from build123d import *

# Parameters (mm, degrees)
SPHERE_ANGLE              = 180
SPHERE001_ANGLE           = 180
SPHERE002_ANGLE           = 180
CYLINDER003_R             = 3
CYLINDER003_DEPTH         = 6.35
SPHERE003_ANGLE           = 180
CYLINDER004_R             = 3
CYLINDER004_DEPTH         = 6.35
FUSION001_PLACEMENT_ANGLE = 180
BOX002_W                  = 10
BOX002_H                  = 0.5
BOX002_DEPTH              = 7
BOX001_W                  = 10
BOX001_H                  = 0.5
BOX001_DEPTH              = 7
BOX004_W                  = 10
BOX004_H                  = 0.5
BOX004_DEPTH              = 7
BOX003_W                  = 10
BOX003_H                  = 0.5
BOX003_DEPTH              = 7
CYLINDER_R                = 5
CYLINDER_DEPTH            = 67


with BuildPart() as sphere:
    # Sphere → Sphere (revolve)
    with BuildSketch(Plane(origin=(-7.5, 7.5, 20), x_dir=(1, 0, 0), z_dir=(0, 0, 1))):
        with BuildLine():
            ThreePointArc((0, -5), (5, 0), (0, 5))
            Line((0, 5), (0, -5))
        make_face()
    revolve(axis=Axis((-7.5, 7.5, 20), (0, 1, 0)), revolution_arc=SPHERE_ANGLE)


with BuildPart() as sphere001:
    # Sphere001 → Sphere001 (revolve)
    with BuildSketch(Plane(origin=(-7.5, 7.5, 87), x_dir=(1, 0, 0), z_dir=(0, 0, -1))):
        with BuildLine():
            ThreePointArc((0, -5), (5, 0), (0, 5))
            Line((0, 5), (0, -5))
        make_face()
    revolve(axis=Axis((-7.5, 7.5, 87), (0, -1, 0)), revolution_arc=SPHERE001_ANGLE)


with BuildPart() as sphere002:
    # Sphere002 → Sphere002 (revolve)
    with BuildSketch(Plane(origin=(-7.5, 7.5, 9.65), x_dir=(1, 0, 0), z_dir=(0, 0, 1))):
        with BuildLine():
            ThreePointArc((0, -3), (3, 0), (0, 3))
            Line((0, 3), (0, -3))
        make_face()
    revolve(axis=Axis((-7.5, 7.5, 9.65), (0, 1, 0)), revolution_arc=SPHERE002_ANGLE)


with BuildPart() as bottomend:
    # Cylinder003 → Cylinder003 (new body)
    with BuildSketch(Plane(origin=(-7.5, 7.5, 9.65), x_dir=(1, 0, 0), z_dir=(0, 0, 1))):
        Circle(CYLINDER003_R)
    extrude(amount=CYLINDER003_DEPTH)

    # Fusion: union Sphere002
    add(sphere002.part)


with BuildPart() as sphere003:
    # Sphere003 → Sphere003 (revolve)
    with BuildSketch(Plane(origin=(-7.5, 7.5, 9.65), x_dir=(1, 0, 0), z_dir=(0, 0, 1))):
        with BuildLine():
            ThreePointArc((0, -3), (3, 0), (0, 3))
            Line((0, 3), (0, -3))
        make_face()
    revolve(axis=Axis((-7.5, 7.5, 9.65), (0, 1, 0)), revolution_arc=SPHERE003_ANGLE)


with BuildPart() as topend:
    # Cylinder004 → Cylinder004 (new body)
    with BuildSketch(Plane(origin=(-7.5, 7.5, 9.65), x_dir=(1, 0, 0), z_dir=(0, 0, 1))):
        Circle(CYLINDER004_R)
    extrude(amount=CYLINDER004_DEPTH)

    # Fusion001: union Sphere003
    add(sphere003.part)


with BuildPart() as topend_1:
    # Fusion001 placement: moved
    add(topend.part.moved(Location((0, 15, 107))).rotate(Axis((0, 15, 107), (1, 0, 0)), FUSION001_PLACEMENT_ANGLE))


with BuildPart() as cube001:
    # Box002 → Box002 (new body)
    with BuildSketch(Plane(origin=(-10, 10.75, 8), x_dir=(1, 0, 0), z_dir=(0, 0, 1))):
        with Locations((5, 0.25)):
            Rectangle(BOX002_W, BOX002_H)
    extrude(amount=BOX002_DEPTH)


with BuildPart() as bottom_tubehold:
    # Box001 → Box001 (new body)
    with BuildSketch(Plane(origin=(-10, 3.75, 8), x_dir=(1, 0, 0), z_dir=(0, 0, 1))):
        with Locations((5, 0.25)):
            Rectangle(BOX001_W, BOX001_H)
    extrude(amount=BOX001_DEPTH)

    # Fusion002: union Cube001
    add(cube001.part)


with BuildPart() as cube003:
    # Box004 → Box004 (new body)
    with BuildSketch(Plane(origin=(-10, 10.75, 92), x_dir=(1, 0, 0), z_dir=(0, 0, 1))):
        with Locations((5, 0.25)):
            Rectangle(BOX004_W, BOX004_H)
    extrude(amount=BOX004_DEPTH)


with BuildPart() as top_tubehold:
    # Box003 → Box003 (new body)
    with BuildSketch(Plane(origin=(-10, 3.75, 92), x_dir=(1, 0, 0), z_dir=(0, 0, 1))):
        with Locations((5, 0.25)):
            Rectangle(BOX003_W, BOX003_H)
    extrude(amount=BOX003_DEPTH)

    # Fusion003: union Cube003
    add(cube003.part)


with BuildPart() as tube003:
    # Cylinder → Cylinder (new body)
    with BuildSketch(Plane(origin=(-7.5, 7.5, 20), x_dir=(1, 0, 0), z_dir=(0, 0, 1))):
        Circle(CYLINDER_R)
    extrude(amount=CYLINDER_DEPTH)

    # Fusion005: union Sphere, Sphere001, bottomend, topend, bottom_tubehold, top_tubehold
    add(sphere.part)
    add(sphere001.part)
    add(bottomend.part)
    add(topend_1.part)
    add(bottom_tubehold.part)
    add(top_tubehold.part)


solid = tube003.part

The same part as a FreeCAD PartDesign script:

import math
import FreeCAD as App
import Part
import Sketcher
from FreeCAD import Vector
Q = App.Units.Quantity


def add_polygon(sketch, points):
    """Adds a closed chain of lines whose ends are joined by coincident constraints."""
    first, n = sketch.GeometryCount, len(points)
    for a, b in zip(points, points[1:] + points[:1]):
        sketch.addGeometry(Part.LineSegment(App.Vector(*a, 0), App.Vector(*b, 0)), False)
    for i in range(n):
        sketch.addConstraint(Sketcher.Constraint("Coincident", first + i, 2, first + (i + 1) % n, 1))

doc = App.newDocument("Part")
params = doc.addObject("Spreadsheet::Sheet", "Params")
for row, (alias, value) in enumerate([
    ("sketch1_radius", "5 mm"),
    ("revolution_angle", "180 deg"),
    ("sketch2_radius", "5 mm"),
    ("revolution2_angle", "180 deg"),
    ("sketch3_radius", "3 mm"),
    ("revolution3_angle", "180 deg"),
    ("sketch4_diameter", "6 mm"),
    ("pad1_length", "6.35 mm"),
    ("sketch5_radius", "3 mm"),
    ("revolution4_angle", "180 deg"),
    ("sketch6_diameter", "6 mm"),
    ("pad2_length", "6.35 mm"),
    ("sketch7_width", "10 mm"),
    ("sketch7_height", "0.5 mm"),
    ("pad3_length", "7 mm"),
    ("sketch8_width", "10 mm"),
    ("sketch8_height", "0.5 mm"),
    ("pad4_length", "7 mm"),
    ("sketch9_width", "10 mm"),
    ("sketch9_height", "0.5 mm"),
    ("pad5_length", "7 mm"),
    ("sketch10_width", "10 mm"),
    ("sketch10_height", "0.5 mm"),
    ("pad6_length", "7 mm"),
    ("sketch11_diameter", "10 mm"),
    ("pad7_length", "67 mm"),
], start=1):
    params.set(f"A{row}", alias)
    params.set(f"B{row}", "=" + value)
    params.setAlias(f"B{row}", alias)

body = doc.addObject("PartDesign::Body", "Body")

sketch1 = body.newObject("Sketcher::SketchObject", "Sketch")
sketch1.AttachmentSupport = (doc.getObject("XY_Plane"), [""])
sketch1.MapMode = "FlatFace"
sketch1.AttachmentOffset = App.Placement(Vector(0, 0, 20), App.Rotation())
sketch1.addGeometry([
    Part.ArcOfCircle(Part.Circle(Vector(-8, 8, 0), Vector(0, 0, 1), 5), math.radians(-90), math.radians(90)),
    Part.LineSegment(Vector(-8, 12, 0), Vector(-8, 2, 0)),
], False)
sketch1.addGeometry(Part.LineSegment(Vector(-8, 2, 0), Vector(-8, 12, 0)), True)
sketch1.addConstraint([
    Sketcher.Constraint("Coincident", 0, 1, 1, 2),
    Sketcher.Constraint("Coincident", 1, 1, 0, 2),
    Sketcher.Constraint("Vertical", 1),
    Sketcher.Constraint("Vertical", 2),
    Sketcher.Constraint("Coincident", 2, 1, 0, 1),
    Sketcher.Constraint("Equal", 1, 2),
    Sketcher.Constraint("Radius", 0, Q("5 mm")),
    Sketcher.Constraint("DistanceX", 0, 3, -1, 1, Q("7.5 mm")),
    Sketcher.Constraint("DistanceY", -1, 1, 0, 3, Q("7.5 mm")),
    Sketcher.Constraint("DistanceX", 0, 1, -1, 1, Q("7.5 mm")),
])
sketch1.setExpression("Constraints[6]", "Params.sketch1_radius")
revolution = body.newObject("PartDesign::Revolution", "Revolution")
revolution.Profile = sketch1
revolution.ReferenceAxis = (sketch1, ["Axis0"])
revolution.setExpression("Angle", "Params.revolution_angle")
body2 = doc.addObject("PartDesign::Body", "Body001")

sketch2 = body2.newObject("Sketcher::SketchObject", "Sketch001")
sketch2.AttachmentSupport = (doc.getObject("XY_Plane001"), [""])
sketch2.MapMode = "FlatFace"
sketch2.AttachmentOffset = App.Placement(Vector(0, 0, 87), App.Rotation())
sketch2.addGeometry([
    Part.ArcOfCircle(Part.Circle(Vector(-8, 8, 0), Vector(0, 0, 1), 5), math.radians(-90), math.radians(90)),
    Part.LineSegment(Vector(-8, 2, 0), Vector(-8, 12, 0)),
], False)
sketch2.addGeometry(Part.LineSegment(Vector(-8, 12, 0), Vector(-8, 2, 0)), True)
sketch2.addConstraint([
    Sketcher.Constraint("Coincident", 0, 1, 1, 1),
    Sketcher.Constraint("Coincident", 1, 2, 0, 2),
    Sketcher.Constraint("Vertical", 1),
    Sketcher.Constraint("Vertical", 2),
    Sketcher.Constraint("Coincident", 2, 1, 1, 2),
    Sketcher.Constraint("Equal", 1, 2),
    Sketcher.Constraint("Radius", 0, Q("5 mm")),
    Sketcher.Constraint("DistanceX", 0, 3, -1, 1, Q("7.5 mm")),
    Sketcher.Constraint("DistanceY", -1, 1, 0, 3, Q("7.5 mm")),
    Sketcher.Constraint("DistanceX", 0, 1, -1, 1, Q("7.5 mm")),
])
sketch2.setExpression("Constraints[6]", "Params.sketch2_radius")
revolution2 = body2.newObject("PartDesign::Revolution", "Revolution001")
revolution2.Profile = sketch2
revolution2.ReferenceAxis = (sketch2, ["Axis0"])
revolution2.setExpression("Angle", "Params.revolution2_angle")
body3 = doc.addObject("PartDesign::Body", "Body002")

sketch3 = body3.newObject("Sketcher::SketchObject", "Sketch002")
sketch3.AttachmentSupport = (doc.getObject("XY_Plane002"), [""])
sketch3.MapMode = "FlatFace"
sketch3.AttachmentOffset = App.Placement(Vector(0, 0, 9.65), App.Rotation())
sketch3.addGeometry([
    Part.ArcOfCircle(Part.Circle(Vector(-7.5, 7.5, 0), Vector(0, 0, 1), 3), math.radians(-90), math.radians(90)),
    Part.LineSegment(Vector(-7.5, 10.5, 0), Vector(-7.5, 4.5, 0)),
], False)
sketch3.addGeometry(Part.LineSegment(Vector(-7.5, 4.5, 0), Vector(-7.5, 10.5, 0)), True)
sketch3.addConstraint([
    Sketcher.Constraint("Coincident", 0, 1, 1, 2),
    Sketcher.Constraint("Coincident", 1, 1, 0, 2),
    Sketcher.Constraint("Vertical", 1),
    Sketcher.Constraint("Vertical", 2),
    Sketcher.Constraint("Coincident", 2, 1, 0, 1),
    Sketcher.Constraint("Equal", 1, 2),
    Sketcher.Constraint("Radius", 0, Q("3 mm")),
    Sketcher.Constraint("DistanceX", 0, 3, -1, 1, Q("7.5 mm")),
    Sketcher.Constraint("DistanceY", -1, 1, 0, 3, Q("7.5 mm")),
    Sketcher.Constraint("DistanceX", 0, 1, -1, 1, Q("7.5 mm")),
])
sketch3.setExpression("Constraints[6]", "Params.sketch3_radius")
revolution3 = body3.newObject("PartDesign::Revolution", "Revolution002")
revolution3.Profile = sketch3
revolution3.ReferenceAxis = (sketch3, ["Axis0"])
revolution3.setExpression("Angle", "Params.revolution3_angle")
body4 = doc.addObject("PartDesign::Body", "Body003")

sketch4 = body4.newObject("Sketcher::SketchObject", "Sketch003")
sketch4.AttachmentSupport = (doc.getObject("XY_Plane003"), [""])
sketch4.MapMode = "FlatFace"
sketch4.AttachmentOffset = App.Placement(Vector(0, 0, 9.65), App.Rotation())
sketch4.addGeometry(Part.Circle(Vector(-7.5, 7.5, 0), Vector(0, 0, 1), 3), False)
sketch4.addConstraint([
    Sketcher.Constraint("Diameter", 0, Q("6 mm")),
    Sketcher.Constraint("DistanceX", 0, 3, -1, 1, Q("7.5 mm")),
    Sketcher.Constraint("DistanceY", -1, 1, 0, 3, Q("7.5 mm")),
])
sketch4.setExpression("Constraints[0]", "Params.sketch4_diameter")
pad1 = body4.newObject("PartDesign::Pad", "Pad")
pad1.Profile = sketch4
pad1.setExpression("Length", "Params.pad1_length")
doc.recompute()

boolean = body4.newObject("PartDesign::Boolean", "Boolean")
boolean.Type = "Fuse"
boolean.addObjects([body3])
body5 = doc.addObject("PartDesign::Body", "Body004")

sketch5 = body5.newObject("Sketcher::SketchObject", "Sketch004")
sketch5.AttachmentSupport = (doc.getObject("XY_Plane004"), [""])
sketch5.MapMode = "FlatFace"
sketch5.AttachmentOffset = App.Placement(Vector(0, 0, 9.65), App.Rotation())
sketch5.addGeometry([
    Part.ArcOfCircle(Part.Circle(Vector(-7.5, 7.5, 0), Vector(0, 0, 1), 3), math.radians(-90), math.radians(90)),
    Part.LineSegment(Vector(-7.5, 10.5, 0), Vector(-7.5, 4.5, 0)),
], False)
sketch5.addGeometry(Part.LineSegment(Vector(-7.5, 4.5, 0), Vector(-7.5, 10.5, 0)), True)
sketch5.addConstraint([
    Sketcher.Constraint("Coincident", 0, 1, 1, 2),
    Sketcher.Constraint("Coincident", 1, 1, 0, 2),
    Sketcher.Constraint("Vertical", 1),
    Sketcher.Constraint("Vertical", 2),
    Sketcher.Constraint("Coincident", 2, 1, 0, 1),
    Sketcher.Constraint("Equal", 1, 2),
    Sketcher.Constraint("Radius", 0, Q("3 mm")),
    Sketcher.Constraint("DistanceX", 0, 3, -1, 1, Q("7.5 mm")),
    Sketcher.Constraint("DistanceY", -1, 1, 0, 3, Q("7.5 mm")),
    Sketcher.Constraint("DistanceX", 0, 1, -1, 1, Q("7.5 mm")),
])
sketch5.setExpression("Constraints[6]", "Params.sketch5_radius")
revolution4 = body5.newObject("PartDesign::Revolution", "Revolution003")
revolution4.Profile = sketch5
revolution4.ReferenceAxis = (sketch5, ["Axis0"])
revolution4.setExpression("Angle", "Params.revolution4_angle")
body6 = doc.addObject("PartDesign::Body", "Body005")

sketch6 = body6.newObject("Sketcher::SketchObject", "Sketch005")
sketch6.AttachmentSupport = (doc.getObject("XY_Plane005"), [""])
sketch6.MapMode = "FlatFace"
sketch6.AttachmentOffset = App.Placement(Vector(0, 0, 9.65), App.Rotation())
sketch6.addGeometry(Part.Circle(Vector(-7.5, 7.5, 0), Vector(0, 0, 1), 3), False)
sketch6.addConstraint([
    Sketcher.Constraint("Diameter", 0, Q("6 mm")),
    Sketcher.Constraint("DistanceX", 0, 3, -1, 1, Q("7.5 mm")),
    Sketcher.Constraint("DistanceY", -1, 1, 0, 3, Q("7.5 mm")),
])
sketch6.setExpression("Constraints[0]", "Params.sketch6_diameter")
pad2 = body6.newObject("PartDesign::Pad", "Pad001")
pad2.Profile = sketch6
pad2.setExpression("Length", "Params.pad2_length")
doc.recompute()

boolean2 = body6.newObject("PartDesign::Boolean", "Boolean001")
boolean2.Type = "Fuse"
boolean2.addObjects([body5])
body7 = doc.addObject("PartDesign::Body", "Body006")
doc.recompute()

body6.Placement = App.Placement(Vector(0, 15, 107), App.Rotation(Vector(1, 0, 0), 180))
boolean3 = body7.newObject("PartDesign::Boolean", "Boolean002")
boolean3.Type = "Fuse"
boolean3.addObjects([body6])
body8 = doc.addObject("PartDesign::Body", "Body007")

sketch7 = body8.newObject("Sketcher::SketchObject", "Sketch006")
sketch7.AttachmentSupport = (doc.getObject("XY_Plane007"), [""])
sketch7.MapMode = "FlatFace"
sketch7.AttachmentOffset = App.Placement(Vector(0, 0, 8), App.Rotation())
add_polygon(sketch7, [(-10, 11.2), (-10, 10.8), (0, 10.8), (0, 11.2)])
sketch7.addConstraint([
    Sketcher.Constraint("Vertical", 0),
    Sketcher.Constraint("Horizontal", 1),
    Sketcher.Constraint("Vertical", 2),
    Sketcher.Constraint("Horizontal", 3),
    Sketcher.Constraint("PointOnObject", 1, 2, -2),
    Sketcher.Constraint("DistanceX", 1, 1, 1, 2, Q("10 mm")),
    Sketcher.Constraint("DistanceY", 0, 2, 0, 1, Q("0.5 mm")),
    Sketcher.Constraint("DistanceY", -1, 1, 0, 2, Q("10.75 mm")),
])
sketch7.setExpression("Constraints[9]", "Params.sketch7_width")
sketch7.setExpression("Constraints[10]", "Params.sketch7_height")
pad3 = body8.newObject("PartDesign::Pad", "Pad002")
pad3.Profile = sketch7
pad3.setExpression("Length", "Params.pad3_length")
body9 = doc.addObject("PartDesign::Body", "Body008")
body9.AllowCompound = True

sketch8 = body9.newObject("Sketcher::SketchObject", "Sketch007")
sketch8.AttachmentSupport = (doc.getObject("XY_Plane008"), [""])
sketch8.MapMode = "FlatFace"
sketch8.AttachmentOffset = App.Placement(Vector(0, 0, 8), App.Rotation())
add_polygon(sketch8, [(-10, 4.2), (-10, 3.8), (0, 3.8), (0, 4.2)])
sketch8.addConstraint([
    Sketcher.Constraint("Vertical", 0),
    Sketcher.Constraint("Horizontal", 1),
    Sketcher.Constraint("Vertical", 2),
    Sketcher.Constraint("Horizontal", 3),
    Sketcher.Constraint("PointOnObject", 1, 2, -2),
    Sketcher.Constraint("DistanceX", 1, 1, 1, 2, Q("10 mm")),
    Sketcher.Constraint("DistanceY", 0, 2, 0, 1, Q("0.5 mm")),
    Sketcher.Constraint("DistanceY", -1, 1, 0, 2, Q("3.75 mm")),
])
sketch8.setExpression("Constraints[9]", "Params.sketch8_width")
sketch8.setExpression("Constraints[10]", "Params.sketch8_height")
pad4 = body9.newObject("PartDesign::Pad", "Pad003")
pad4.Profile = sketch8
pad4.setExpression("Length", "Params.pad4_length")
doc.recompute()

boolean4 = body9.newObject("PartDesign::Boolean", "Boolean003")
boolean4.Type = "Fuse"
boolean4.addObjects([body8])
body10 = doc.addObject("PartDesign::Body", "Body009")

sketch9 = body10.newObject("Sketcher::SketchObject", "Sketch008")
sketch9.AttachmentSupport = (doc.getObject("XY_Plane009"), [""])
sketch9.MapMode = "FlatFace"
sketch9.AttachmentOffset = App.Placement(Vector(0, 0, 92), App.Rotation())
add_polygon(sketch9, [(-10, 11.2), (-10, 10.8), (0, 10.8), (0, 11.2)])
sketch9.addConstraint([
    Sketcher.Constraint("Vertical", 0),
    Sketcher.Constraint("Horizontal", 1),
    Sketcher.Constraint("Vertical", 2),
    Sketcher.Constraint("Horizontal", 3),
    Sketcher.Constraint("PointOnObject", 1, 2, -2),
    Sketcher.Constraint("DistanceX", 1, 1, 1, 2, Q("10 mm")),
    Sketcher.Constraint("DistanceY", 0, 2, 0, 1, Q("0.5 mm")),
    Sketcher.Constraint("DistanceY", -1, 1, 0, 2, Q("10.75 mm")),
])
sketch9.setExpression("Constraints[9]", "Params.sketch9_width")
sketch9.setExpression("Constraints[10]", "Params.sketch9_height")
pad5 = body10.newObject("PartDesign::Pad", "Pad004")
pad5.Profile = sketch9
pad5.setExpression("Length", "Params.pad5_length")
body11 = doc.addObject("PartDesign::Body", "Body010")
body11.AllowCompound = True

sketch10 = body11.newObject("Sketcher::SketchObject", "Sketch009")
sketch10.AttachmentSupport = (doc.getObject("XY_Plane010"), [""])
sketch10.MapMode = "FlatFace"
sketch10.AttachmentOffset = App.Placement(Vector(0, 0, 92), App.Rotation())
add_polygon(sketch10, [(-10, 4.2), (-10, 3.8), (0, 3.8), (0, 4.2)])
sketch10.addConstraint([
    Sketcher.Constraint("Vertical", 0),
    Sketcher.Constraint("Horizontal", 1),
    Sketcher.Constraint("Vertical", 2),
    Sketcher.Constraint("Horizontal", 3),
    Sketcher.Constraint("PointOnObject", 1, 2, -2),
    Sketcher.Constraint("DistanceX", 1, 1, 1, 2, Q("10 mm")),
    Sketcher.Constraint("DistanceY", 0, 2, 0, 1, Q("0.5 mm")),
    Sketcher.Constraint("DistanceY", -1, 1, 0, 2, Q("3.75 mm")),
])
sketch10.setExpression("Constraints[9]", "Params.sketch10_width")
sketch10.setExpression("Constraints[10]", "Params.sketch10_height")
pad6 = body11.newObject("PartDesign::Pad", "Pad005")
pad6.Profile = sketch10
pad6.setExpression("Length", "Params.pad6_length")
doc.recompute()

boolean5 = body11.newObject("PartDesign::Boolean", "Boolean004")
boolean5.Type = "Fuse"
boolean5.addObjects([body10])
body12 = doc.addObject("PartDesign::Body", "Body011")
body12.AllowCompound = True

sketch11 = body12.newObject("Sketcher::SketchObject", "Sketch010")
sketch11.AttachmentSupport = (doc.getObject("XY_Plane011"), [""])
sketch11.MapMode = "FlatFace"
sketch11.AttachmentOffset = App.Placement(Vector(0, 0, 20), App.Rotation())
sketch11.addGeometry(Part.Circle(Vector(-8, 8, 0), Vector(0, 0, 1), 5), False)
sketch11.addConstraint([
    Sketcher.Constraint("Diameter", 0, Q("10 mm")),
    Sketcher.Constraint("DistanceX", 0, 3, -1, 1, Q("7.5 mm")),
    Sketcher.Constraint("DistanceY", -1, 1, 0, 3, Q("7.5 mm")),
])
sketch11.setExpression("Constraints[0]", "Params.sketch11_diameter")
pad7 = body12.newObject("PartDesign::Pad", "Pad006")
pad7.Profile = sketch11
pad7.setExpression("Length", "Params.pad7_length")
doc.recompute()

boolean6 = body12.newObject("PartDesign::Boolean", "Boolean005")
boolean6.Type = "Fuse"
boolean6.addObjects([body])
doc.recompute()

boolean7 = body12.newObject("PartDesign::Boolean", "Boolean006")
boolean7.Type = "Fuse"
boolean7.addObjects([body2])
doc.recompute()

boolean8 = body12.newObject("PartDesign::Boolean", "Boolean007")
boolean8.Type = "Fuse"
boolean8.addObjects([body4])
doc.recompute()

boolean9 = body12.newObject("PartDesign::Boolean", "Boolean008")
boolean9.Type = "Fuse"
boolean9.addObjects([body7])
doc.recompute()

boolean10 = body12.newObject("PartDesign::Boolean", "Boolean009")
boolean10.Type = "Fuse"
boolean10.addObjects([body9])
doc.recompute()

boolean11 = body12.newObject("PartDesign::Boolean", "Boolean010")
boolean11.Type = "Fuse"
boolean11.addObjects([body11])

doc.recompute()
